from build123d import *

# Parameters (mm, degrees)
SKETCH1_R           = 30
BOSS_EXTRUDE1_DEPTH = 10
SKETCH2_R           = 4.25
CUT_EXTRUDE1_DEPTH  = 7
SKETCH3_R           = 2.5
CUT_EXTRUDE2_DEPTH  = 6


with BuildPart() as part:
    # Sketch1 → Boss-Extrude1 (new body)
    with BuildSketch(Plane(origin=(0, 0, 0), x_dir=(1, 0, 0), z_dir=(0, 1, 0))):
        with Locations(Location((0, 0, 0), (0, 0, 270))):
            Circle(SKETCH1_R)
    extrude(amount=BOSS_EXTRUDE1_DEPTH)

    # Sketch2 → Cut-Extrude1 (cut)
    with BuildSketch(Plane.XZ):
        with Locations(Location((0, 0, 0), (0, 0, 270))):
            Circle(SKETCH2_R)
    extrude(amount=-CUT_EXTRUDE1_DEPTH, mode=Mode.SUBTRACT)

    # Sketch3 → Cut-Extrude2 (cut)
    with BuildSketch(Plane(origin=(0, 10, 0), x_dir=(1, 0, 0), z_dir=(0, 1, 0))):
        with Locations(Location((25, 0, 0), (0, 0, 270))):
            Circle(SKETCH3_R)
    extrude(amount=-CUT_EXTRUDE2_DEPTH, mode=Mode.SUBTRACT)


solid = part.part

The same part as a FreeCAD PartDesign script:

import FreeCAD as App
import Part
import Sketcher

V = App.Vector
Q = App.Units.Quantity

doc = App.newDocument("Part")
body = doc.addObject("PartDesign::Body", "Body")

# Sketch on XZ plane
sketch1 = body.newObject("Sketcher::SketchObject", "Sketch")
sketch1.AttachmentSupport = (doc.getObject("XZ_Plane"), [""])
sketch1.MapMode = "FlatFace"
sketch1.addGeometry(Part.Circle(V(0, 0, 0), V(0, 0, 1), 30), False)
sketch1.addConstraint([
    Sketcher.Constraint("Coincident", 0, 3, -1, 1),
    Sketcher.Constraint("Diameter", 0, Q("60 mm")),
])
pad1 = body.newObject("PartDesign::Pad", "Pad")
pad1.Profile = sketch1
pad1.Length = 10
pad1.Reversed = True

# Sketch on XZ plane
sketch2 = body.newObject("Sketcher::SketchObject", "Sketch001")
sketch2.AttachmentSupport = (doc.getObject("XZ_Plane"), [""])
sketch2.MapMode = "FlatFace"
sketch2.addGeometry(Part.Circle(V(0, 0, 0), V(0, 0, 1), 4.2), False)
sketch2.addConstraint([
    Sketcher.Constraint("Coincident", 0, 3, -1, 1),
    Sketcher.Constraint("Diameter", 0, Q("8.5 mm")),
])
pocket1 = body.newObject("PartDesign::Pocket", "Pocket")
pocket1.Profile = sketch2
pocket1.Length = 7

# Sketch on XZ plane
sketch3 = body.newObject("Sketcher::SketchObject", "Sketch002")
sketch3.AttachmentSupport = (doc.getObject("XZ_Plane"), [""])
sketch3.MapMode = "FlatFace"
sketch3.AttachmentOffset = App.Placement(V(0, 0, -10), App.Rotation())
sketch3.addGeometry(Part.Circle(V(25, 0, 0), V(0, 0, 1), 2.5), False)
sketch3.addConstraint([
    Sketcher.Constraint("PointOnObject", 0, 3, -1),
    Sketcher.Constraint("Diameter", 0, Q("5 mm")),
    Sketcher.Constraint("DistanceX", -1, 1, 0, 3, Q("25 mm")),
])
pocket2 = body.newObject("PartDesign::Pocket", "Pocket001")
pocket2.Profile = sketch3
pocket2.Length = 6
pocket2.Reversed = True

doc.recompute()
